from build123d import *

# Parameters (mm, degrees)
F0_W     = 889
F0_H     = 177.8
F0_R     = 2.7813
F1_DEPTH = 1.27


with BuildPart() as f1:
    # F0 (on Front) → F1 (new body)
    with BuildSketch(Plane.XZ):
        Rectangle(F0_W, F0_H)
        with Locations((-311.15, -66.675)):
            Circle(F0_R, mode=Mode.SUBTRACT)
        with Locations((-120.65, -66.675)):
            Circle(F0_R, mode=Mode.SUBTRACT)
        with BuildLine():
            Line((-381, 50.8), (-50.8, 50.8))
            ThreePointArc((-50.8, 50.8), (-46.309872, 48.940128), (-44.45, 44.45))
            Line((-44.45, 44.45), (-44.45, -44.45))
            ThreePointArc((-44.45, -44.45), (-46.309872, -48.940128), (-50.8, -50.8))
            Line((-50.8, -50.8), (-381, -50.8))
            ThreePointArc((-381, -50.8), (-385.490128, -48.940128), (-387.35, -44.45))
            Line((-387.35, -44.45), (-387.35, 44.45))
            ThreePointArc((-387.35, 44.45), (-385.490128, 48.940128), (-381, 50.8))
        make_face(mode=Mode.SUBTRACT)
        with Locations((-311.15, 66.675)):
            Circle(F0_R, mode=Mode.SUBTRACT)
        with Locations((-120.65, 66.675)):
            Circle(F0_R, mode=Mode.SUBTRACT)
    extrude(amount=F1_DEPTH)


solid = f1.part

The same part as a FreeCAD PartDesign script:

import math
import FreeCAD as App
import Part
import Sketcher
Q = App.Units.Quantity

doc = App.newDocument("Part")
params = doc.addObject("Spreadsheet::Sheet", "Params")
for row, (alias, value) in enumerate([
    ("sketch1_width", "35 in"),
    ("sketch1_width2", "13 in"),
    ("sketch1_height", "7 in"),
    ("sketch1_radius", "0.25 in"),
    ("sketch1_diameter", "0.219 in"),
    ("pad1_length", "0.05 in"),
], start=1):
    params.set(f"A{row}", alias)
    params.set(f"B{row}", "=" + value)
    params.setAlias(f"B{row}", alias)

body = doc.addObject("PartDesign::Body", "Body")

# Sketch on XZ plane
sketch1 = body.newObject("Sketcher::SketchObject", "Sketch")
sketch1.AttachmentSupport = (doc.getObject("XZ_Plane"), [""])
sketch1.MapMode = "FlatFace"
sketch1.addGeometry([
    Part.LineSegment(App.Vector(-444.5, 88.9, 0), App.Vector(-444.5, -88.9, 0)),  # 0
    Part.LineSegment(App.Vector(-444.5, -88.9, 0), App.Vector(444.5, -88.9, 0)),  # 1
    Part.LineSegment(App.Vector(444.5, -88.9, 0), App.Vector(444.5, 88.9, 0)),  # 2
    Part.LineSegment(App.Vector(444.5, 88.9, 0), App.Vector(-444.5, 88.9, 0)),  # 3
    Part.Circle(App.Vector(-311.1, -66.7, 0), App.Vector(0, 0, 1), 2.8),  # 4
    Part.Circle(App.Vector(-120.7, -66.7, 0), App.Vector(0, 0, 1), 2.8),  # 5
    Part.Circle(App.Vector(-311.1, 66.7, 0), App.Vector(0, 0, 1), 2.8),  # 6
    Part.ArcOfCircle(Part.Circle(App.Vector(-381, 44.4, 0), App.Vector(0, 0, 1), 6.4), math.radians(90), math.radians(180)),  # 7
    Part.LineSegment(App.Vector(-381, 50.8, 0), App.Vector(-50.8, 50.8, 0)),  # 8
    Part.ArcOfCircle(Part.Circle(App.Vector(-50.8, 44.4, 0), App.Vector(0, 0, 1), 6.4), math.radians(0), math.radians(90)),  # 9
    Part.LineSegment(App.Vector(-44.5, 44.5, 0), App.Vector(-44.5, -44.5, 0)),  # 10
    Part.ArcOfCircle(Part.Circle(App.Vector(-50.8, -44.4, 0), App.Vector(0, 0, 1), 6.4), math.radians(-90), math.radians(0)),  # 11
    Part.LineSegment(App.Vector(-50.8, -50.8, 0), App.Vector(-381, -50.8, 0)),  # 12
    Part.ArcOfCircle(Part.Circle(App.Vector(-381, -44.4, 0), App.Vector(0, 0, 1), 6.4), math.radians(-180), math.radians(-90)),  # 13
    Part.LineSegment(App.Vector(-387.4, -44.5, 0), App.Vector(-387.4, 44.5, 0)),  # 14
    Part.Circle(App.Vector(-120.7, 66.7, 0), App.Vector(0, 0, 1), 2.8),  # 15
], False)
sketch1.addConstraint([
    Sketcher.Constraint("Coincident", 0, 2, 1, 1),
    Sketcher.Constraint("Coincident", 1, 2, 2, 1),
    Sketcher.Constraint("Coincident", 2, 2, 3, 1),
    Sketcher.Constraint("Coincident", 3, 2, 0, 1),
    Sketcher.Constraint("Tangent", 7, 1, 8, 1),
    Sketcher.Constraint("Tangent", 8, 2, 9, 2),
    Sketcher.Constraint("Tangent", 9, 1, 10, 1),
    Sketcher.Constraint("Tangent", 10, 2, 11, 2),
    Sketcher.Constraint("Tangent", 11, 1, 12, 1),
    Sketcher.Constraint("Tangent", 12, 2, 13, 2),
    Sketcher.Constraint("Tangent", 13, 1, 14, 1),
    Sketcher.Constraint("Tangent", 14, 2, 7, 2),
    Sketcher.Constraint("Vertical", 0),
    Sketcher.Constraint("Horizontal", 1),
    Sketcher.Constraint("Vertical", 2),
    Sketcher.Constraint("Horizontal", 3),
    Sketcher.Constraint("Horizontal", 8),
    Sketcher.Constraint("Vertical", 10),
    Sketcher.Constraint("Horizontal", 12),
    Sketcher.Constraint("Vertical", 14),
    Sketcher.Constraint("Equal", 4, 5),
    Sketcher.Constraint("Equal", 5, 6),
    Sketcher.Constraint("Equal", 7, 9),
    Sketcher.Constraint("Equal", 9, 11),
    Sketcher.Constraint("Equal", 11, 13),
    Sketcher.Constraint("Equal", 6, 15),
    Sketcher.Constraint("Symmetric", 0, 2, 2, 2, -1, 1),
    Sketcher.Constraint("Symmetric", 4, 3, 6, 3, -1),
    Sketcher.Constraint("Symmetric", 5, 3, 15, 3, -1),
    Sketcher.Constraint("Horizontal", 4, 3, 5, 3),
    Sketcher.Constraint("DistanceX", 1, 1, 1, 2, Q("35 in")),
    Sketcher.Constraint("DistanceX", 8, 1, 8, 2, Q("13 in")),
    Sketcher.Constraint("DistanceY", 0, 2, 0, 1, Q("7 in")),
    Sketcher.Constraint("Radius", 7, Q("0.25 in")),
    Sketcher.Constraint("Diameter", 4, Q("0.219 in")),
    Sketcher.Constraint("DistanceY", 10, 2, 10, 1, Q("3.5 in")),
    Sketcher.Constraint("DistanceX", 7, 3, -1, 1, Q("15 in")),
    Sketcher.Constraint("DistanceY", -1, 1, 7, 1, Q("2 in")),
    Sketcher.Constraint("DistanceX", 15, 3, 9, 1, Q("3 in")),
    Sketcher.Constraint("DistanceX", 13, 1, 4, 3, Q("3 in")),
    Sketcher.Constraint("DistanceY", 4, 3, 6, 3, Q("5.25 in")),
])
sketch1.setExpression("Constraints[30]", "Params.sketch1_width")
sketch1.setExpression("Constraints[31]", "Params.sketch1_width2")
sketch1.setExpression("Constraints[32]", "Params.sketch1_height")
sketch1.setExpression("Constraints[33]", "Params.sketch1_radius")
sketch1.setExpression("Constraints[34]", "Params.sketch1_diameter")
pad1 = body.newObject("PartDesign::Pad", "Pad")
pad1.Profile = sketch1
pad1.setExpression("Length", "Params.pad1_length")

doc.recompute()
